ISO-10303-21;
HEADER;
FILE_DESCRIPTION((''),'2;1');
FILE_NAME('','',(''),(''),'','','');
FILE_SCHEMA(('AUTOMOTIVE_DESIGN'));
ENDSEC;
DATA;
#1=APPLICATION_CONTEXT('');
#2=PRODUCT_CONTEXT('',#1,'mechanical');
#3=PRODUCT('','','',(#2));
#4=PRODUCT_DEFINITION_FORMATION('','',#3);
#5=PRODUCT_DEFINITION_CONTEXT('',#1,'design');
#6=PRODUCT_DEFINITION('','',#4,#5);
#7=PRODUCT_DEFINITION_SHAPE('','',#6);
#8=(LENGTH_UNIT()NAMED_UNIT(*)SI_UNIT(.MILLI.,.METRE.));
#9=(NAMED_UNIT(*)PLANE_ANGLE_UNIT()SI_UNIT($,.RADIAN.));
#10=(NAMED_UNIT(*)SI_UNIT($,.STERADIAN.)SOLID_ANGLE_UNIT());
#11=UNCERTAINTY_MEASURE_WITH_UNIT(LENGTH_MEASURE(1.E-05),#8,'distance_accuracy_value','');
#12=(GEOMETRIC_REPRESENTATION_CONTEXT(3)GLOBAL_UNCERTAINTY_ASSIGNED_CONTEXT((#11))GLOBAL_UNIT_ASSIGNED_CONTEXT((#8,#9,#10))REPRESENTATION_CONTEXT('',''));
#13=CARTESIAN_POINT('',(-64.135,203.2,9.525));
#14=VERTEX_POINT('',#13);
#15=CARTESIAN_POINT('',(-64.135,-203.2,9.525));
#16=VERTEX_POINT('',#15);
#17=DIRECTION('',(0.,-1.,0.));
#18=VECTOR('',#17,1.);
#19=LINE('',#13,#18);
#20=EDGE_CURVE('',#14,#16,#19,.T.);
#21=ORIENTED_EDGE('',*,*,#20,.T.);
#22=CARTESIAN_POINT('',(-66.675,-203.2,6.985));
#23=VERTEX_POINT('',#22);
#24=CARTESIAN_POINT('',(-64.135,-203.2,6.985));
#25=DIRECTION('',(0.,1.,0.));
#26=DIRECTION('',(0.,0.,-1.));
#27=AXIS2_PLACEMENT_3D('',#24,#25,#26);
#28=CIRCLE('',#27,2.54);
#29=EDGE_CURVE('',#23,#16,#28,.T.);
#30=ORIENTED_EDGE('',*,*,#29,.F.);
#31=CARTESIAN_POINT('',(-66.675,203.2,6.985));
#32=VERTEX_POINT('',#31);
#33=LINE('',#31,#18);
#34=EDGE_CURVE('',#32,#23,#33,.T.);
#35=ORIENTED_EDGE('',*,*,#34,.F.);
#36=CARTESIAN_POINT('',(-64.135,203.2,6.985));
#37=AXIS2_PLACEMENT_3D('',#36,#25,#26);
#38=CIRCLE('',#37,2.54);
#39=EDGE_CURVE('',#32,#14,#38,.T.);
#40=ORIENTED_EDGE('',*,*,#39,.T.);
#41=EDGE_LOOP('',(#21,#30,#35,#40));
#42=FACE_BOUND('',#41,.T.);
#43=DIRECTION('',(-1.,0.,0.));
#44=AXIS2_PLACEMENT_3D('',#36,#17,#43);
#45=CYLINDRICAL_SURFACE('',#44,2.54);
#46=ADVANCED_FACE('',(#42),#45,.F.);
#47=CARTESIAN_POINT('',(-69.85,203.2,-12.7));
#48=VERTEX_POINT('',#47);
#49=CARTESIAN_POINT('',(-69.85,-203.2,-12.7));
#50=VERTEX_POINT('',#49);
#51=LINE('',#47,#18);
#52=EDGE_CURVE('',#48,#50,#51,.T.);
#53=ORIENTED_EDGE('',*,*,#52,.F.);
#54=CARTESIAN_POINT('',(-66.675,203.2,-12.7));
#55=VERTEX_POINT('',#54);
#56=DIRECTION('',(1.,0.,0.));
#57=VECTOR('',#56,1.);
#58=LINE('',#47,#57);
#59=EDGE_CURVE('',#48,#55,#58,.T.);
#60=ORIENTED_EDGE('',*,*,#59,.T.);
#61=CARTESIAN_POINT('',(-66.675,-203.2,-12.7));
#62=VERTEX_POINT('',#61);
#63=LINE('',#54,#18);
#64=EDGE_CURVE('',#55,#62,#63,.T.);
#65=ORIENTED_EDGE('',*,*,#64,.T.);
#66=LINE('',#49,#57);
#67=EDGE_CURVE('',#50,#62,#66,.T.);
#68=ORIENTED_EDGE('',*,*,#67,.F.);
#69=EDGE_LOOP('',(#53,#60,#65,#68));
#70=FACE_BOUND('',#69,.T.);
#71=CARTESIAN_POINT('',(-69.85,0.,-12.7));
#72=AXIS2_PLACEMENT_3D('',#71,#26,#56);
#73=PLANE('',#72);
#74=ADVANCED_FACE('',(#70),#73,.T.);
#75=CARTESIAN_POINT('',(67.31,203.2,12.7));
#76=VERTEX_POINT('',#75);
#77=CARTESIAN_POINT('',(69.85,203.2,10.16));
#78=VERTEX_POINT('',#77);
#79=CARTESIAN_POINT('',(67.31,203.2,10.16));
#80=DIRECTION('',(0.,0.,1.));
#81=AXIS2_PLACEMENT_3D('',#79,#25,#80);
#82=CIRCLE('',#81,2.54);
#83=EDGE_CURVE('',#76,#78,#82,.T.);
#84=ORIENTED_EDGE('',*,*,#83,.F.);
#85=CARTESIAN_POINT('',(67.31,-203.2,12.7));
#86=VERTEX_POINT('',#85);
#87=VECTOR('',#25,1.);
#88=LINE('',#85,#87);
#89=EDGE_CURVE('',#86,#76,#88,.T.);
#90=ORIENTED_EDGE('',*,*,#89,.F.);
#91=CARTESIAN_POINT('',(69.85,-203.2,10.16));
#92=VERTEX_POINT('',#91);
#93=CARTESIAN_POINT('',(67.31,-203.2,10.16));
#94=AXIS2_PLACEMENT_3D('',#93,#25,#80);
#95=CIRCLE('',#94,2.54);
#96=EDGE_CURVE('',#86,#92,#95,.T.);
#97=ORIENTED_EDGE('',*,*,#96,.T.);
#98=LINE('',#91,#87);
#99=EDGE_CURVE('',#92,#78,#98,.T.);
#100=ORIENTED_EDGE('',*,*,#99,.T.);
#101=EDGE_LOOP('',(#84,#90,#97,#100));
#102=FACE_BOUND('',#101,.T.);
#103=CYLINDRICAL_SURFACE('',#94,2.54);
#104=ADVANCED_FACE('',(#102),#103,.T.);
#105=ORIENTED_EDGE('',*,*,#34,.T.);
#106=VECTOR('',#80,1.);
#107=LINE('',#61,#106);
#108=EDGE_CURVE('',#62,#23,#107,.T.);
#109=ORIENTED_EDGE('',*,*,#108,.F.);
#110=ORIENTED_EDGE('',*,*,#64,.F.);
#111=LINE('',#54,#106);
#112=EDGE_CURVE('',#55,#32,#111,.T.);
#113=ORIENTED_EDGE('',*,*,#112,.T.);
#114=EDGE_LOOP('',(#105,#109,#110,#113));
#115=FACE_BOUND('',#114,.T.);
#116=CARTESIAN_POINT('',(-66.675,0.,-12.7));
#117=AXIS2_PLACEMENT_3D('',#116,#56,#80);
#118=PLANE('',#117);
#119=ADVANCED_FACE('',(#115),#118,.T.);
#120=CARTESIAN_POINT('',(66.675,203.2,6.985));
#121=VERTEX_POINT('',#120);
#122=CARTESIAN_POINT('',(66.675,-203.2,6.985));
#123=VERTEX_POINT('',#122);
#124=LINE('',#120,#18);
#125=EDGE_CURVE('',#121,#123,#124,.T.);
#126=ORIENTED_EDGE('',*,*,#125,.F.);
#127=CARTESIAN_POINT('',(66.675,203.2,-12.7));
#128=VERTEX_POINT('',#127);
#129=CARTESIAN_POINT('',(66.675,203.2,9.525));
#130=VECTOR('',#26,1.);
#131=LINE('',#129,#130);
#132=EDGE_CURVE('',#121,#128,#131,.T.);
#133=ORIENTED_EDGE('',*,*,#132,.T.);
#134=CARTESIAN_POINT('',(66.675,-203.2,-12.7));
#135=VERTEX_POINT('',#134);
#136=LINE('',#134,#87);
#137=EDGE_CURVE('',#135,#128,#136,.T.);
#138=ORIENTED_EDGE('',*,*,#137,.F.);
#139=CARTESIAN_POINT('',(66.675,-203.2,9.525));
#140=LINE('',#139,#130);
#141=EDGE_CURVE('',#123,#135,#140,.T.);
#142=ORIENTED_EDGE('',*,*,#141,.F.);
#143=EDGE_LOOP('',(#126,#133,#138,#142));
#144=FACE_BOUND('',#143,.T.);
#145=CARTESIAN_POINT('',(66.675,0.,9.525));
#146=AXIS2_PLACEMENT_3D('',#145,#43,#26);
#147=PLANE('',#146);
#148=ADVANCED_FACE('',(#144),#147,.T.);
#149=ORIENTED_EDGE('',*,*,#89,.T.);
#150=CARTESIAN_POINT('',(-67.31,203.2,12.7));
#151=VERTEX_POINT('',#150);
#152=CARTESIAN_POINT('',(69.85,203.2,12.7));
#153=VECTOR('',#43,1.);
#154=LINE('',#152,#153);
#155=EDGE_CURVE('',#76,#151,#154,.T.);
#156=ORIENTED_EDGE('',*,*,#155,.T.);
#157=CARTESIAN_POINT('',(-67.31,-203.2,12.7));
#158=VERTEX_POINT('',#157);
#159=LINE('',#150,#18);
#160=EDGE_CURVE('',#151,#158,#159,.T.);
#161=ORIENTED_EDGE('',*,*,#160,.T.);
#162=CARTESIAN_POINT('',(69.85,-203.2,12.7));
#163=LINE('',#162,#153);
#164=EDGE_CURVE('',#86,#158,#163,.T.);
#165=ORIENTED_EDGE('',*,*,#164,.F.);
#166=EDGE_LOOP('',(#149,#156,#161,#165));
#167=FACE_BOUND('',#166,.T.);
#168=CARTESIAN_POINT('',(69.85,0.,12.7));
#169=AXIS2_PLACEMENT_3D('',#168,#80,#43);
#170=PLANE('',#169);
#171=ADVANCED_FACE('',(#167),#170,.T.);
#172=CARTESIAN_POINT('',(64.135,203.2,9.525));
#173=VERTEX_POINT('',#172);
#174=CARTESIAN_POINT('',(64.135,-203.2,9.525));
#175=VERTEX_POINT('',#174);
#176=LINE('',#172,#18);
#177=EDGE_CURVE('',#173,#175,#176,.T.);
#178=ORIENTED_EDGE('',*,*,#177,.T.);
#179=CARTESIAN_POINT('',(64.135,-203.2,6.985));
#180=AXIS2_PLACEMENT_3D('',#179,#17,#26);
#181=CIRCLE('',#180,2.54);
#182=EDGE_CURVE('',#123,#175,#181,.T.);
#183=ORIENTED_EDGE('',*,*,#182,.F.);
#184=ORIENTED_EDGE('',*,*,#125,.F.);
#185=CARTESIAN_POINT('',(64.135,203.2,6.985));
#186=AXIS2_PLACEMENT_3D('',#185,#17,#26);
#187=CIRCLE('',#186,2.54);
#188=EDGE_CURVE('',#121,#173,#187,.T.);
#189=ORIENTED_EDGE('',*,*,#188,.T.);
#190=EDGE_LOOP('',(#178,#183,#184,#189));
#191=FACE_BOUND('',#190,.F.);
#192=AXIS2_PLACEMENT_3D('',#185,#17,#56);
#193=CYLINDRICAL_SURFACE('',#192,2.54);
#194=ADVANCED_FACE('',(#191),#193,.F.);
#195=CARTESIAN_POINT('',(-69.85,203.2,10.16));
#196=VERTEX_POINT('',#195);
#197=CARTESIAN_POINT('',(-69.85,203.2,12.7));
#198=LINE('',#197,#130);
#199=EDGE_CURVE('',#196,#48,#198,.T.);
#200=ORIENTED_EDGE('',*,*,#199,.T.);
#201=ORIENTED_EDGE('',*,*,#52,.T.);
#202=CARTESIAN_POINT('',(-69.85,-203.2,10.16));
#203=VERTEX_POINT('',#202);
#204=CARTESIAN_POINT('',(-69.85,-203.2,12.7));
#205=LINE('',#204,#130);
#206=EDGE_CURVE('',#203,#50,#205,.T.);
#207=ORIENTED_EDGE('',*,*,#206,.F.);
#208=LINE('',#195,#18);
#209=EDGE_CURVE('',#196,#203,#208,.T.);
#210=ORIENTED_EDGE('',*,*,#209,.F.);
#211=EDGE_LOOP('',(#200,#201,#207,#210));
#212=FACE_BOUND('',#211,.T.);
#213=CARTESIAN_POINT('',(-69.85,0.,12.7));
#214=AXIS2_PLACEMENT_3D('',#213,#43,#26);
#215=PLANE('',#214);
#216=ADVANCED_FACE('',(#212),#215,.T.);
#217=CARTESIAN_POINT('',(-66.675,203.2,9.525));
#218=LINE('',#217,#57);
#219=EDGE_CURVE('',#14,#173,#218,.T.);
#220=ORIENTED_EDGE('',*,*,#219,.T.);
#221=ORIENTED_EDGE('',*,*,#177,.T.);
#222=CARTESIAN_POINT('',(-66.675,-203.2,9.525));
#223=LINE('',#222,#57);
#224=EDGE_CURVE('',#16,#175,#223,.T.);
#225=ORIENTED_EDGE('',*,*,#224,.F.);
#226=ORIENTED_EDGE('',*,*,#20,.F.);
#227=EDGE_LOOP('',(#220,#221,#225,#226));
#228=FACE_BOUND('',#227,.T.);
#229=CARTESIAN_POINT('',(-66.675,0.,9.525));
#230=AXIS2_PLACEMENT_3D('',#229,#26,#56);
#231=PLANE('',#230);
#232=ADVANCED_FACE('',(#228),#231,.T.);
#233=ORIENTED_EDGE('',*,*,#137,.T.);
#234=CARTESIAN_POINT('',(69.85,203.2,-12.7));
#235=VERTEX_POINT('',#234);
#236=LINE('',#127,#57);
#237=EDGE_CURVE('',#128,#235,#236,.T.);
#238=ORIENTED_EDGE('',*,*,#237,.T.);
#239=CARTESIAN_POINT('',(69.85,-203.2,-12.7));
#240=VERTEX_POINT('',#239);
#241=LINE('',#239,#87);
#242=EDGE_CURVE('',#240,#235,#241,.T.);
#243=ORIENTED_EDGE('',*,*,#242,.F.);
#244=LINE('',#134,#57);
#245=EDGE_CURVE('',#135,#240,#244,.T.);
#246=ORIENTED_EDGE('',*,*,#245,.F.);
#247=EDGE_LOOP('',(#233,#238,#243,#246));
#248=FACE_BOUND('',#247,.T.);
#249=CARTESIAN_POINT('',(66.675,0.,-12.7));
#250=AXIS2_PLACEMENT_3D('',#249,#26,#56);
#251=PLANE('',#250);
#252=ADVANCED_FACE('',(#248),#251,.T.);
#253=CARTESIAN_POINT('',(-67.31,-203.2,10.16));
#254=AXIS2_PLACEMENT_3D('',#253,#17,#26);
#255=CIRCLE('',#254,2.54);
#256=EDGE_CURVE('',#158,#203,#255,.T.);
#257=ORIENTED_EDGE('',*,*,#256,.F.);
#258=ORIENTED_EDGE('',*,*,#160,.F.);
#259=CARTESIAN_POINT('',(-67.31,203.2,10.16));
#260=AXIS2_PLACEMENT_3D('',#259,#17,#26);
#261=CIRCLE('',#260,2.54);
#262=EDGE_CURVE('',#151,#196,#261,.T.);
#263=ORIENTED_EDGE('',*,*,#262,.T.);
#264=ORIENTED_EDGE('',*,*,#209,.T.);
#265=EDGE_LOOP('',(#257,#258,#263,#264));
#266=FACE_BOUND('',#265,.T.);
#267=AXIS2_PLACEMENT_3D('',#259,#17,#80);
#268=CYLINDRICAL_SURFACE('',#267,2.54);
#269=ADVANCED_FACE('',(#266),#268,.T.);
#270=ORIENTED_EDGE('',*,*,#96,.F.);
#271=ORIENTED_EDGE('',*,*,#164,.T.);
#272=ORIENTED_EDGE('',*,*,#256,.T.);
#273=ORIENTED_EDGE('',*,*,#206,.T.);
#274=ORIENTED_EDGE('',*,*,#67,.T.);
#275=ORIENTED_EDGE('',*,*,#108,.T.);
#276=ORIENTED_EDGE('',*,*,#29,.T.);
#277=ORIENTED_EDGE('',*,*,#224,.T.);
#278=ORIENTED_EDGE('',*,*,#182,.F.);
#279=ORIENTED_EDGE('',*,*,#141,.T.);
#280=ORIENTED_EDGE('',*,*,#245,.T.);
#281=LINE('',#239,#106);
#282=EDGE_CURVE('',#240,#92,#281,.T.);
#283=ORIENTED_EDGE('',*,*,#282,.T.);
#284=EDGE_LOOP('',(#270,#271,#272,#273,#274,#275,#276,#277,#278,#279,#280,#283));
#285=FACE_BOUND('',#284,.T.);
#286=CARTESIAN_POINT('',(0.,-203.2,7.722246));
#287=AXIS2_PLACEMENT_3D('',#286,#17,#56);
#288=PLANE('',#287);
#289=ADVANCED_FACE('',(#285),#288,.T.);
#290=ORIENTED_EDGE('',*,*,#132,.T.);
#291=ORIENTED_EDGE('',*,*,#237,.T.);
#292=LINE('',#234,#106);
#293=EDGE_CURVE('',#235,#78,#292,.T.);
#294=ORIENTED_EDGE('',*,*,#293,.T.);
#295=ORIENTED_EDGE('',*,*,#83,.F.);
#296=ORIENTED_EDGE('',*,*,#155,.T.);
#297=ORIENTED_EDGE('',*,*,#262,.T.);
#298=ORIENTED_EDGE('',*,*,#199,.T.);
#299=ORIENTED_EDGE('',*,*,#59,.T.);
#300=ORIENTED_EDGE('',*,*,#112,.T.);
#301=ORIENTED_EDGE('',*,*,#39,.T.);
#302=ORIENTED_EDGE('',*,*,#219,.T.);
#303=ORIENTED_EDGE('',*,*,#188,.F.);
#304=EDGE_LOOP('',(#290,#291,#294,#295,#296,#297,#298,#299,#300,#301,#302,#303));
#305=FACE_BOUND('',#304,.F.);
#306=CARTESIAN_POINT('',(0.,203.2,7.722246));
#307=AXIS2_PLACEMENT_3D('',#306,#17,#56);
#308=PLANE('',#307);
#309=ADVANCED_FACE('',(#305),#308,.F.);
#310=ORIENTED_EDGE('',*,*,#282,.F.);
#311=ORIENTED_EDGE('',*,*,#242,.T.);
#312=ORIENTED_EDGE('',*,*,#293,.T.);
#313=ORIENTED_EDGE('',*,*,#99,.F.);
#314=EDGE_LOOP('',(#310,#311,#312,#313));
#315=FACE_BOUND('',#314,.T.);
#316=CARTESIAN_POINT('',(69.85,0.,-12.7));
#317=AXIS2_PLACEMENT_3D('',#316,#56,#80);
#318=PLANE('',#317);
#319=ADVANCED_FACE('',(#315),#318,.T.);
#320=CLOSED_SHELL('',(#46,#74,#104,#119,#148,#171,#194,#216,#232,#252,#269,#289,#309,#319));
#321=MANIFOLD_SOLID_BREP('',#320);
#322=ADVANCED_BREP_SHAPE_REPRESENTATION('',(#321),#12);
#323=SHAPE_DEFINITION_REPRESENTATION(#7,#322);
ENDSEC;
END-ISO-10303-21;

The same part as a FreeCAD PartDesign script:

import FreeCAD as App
import Part
import Sketcher

V = App.Vector
Q = App.Units.Quantity


def edges_at(feature, points):
    """Names of the edges that pass closest to the given points."""
    edges = feature.Shape.Edges
    near = lambda p: min(range(len(edges)), key=lambda i: edges[i].distToShape(Part.Vertex(*p))[0])
    return sorted({f"Edge{near(p) + 1}" for p in points})

doc = App.newDocument("Part")
body = doc.addObject("PartDesign::Body", "Body")

# Sketch on XZ plane
sketch1 = doc.addObject("Sketcher::SketchObject", "Sketch")
body.addObject(sketch1)
sketch1.AttachmentSupport = (doc.XZ_Plane, [""])
sketch1.MapMode = "FlatFace"
sketch1.addGeometry(Part.LineSegment(V(69.85, 12.7, 0), V(-69.85, 12.7, 0)), False)
sketch1.addGeometry(Part.LineSegment(V(-69.85, 12.7, 0), V(-69.85, -12.7, 0)), False)
sketch1.addGeometry(Part.LineSegment(V(-69.85, -12.7, 0), V(-66.675, -12.7, 0)), False)
sketch1.addGeometry(Part.LineSegment(V(-66.675, -12.7, 0), V(-66.675, 9.525, 0)), False)
sketch1.addGeometry(Part.LineSegment(V(-66.675, 9.525, 0), V(66.675, 9.525, 0)), False)
sketch1.addGeometry(Part.LineSegment(V(66.675, 9.525, 0), V(66.675, -12.7, 0)), False)
sketch1.addGeometry(Part.LineSegment(V(66.675, -12.7, 0), V(69.85, -12.7, 0)), False)
sketch1.addGeometry(Part.LineSegment(V(69.85, -12.7, 0), V(69.85, 12.7, 0)), False)
sketch1.addConstraint(Sketcher.Constraint("Coincident", 0, 2, 1, 1))
sketch1.addConstraint(Sketcher.Constraint("Coincident", 1, 2, 2, 1))
sketch1.addConstraint(Sketcher.Constraint("Coincident", 2, 2, 3, 1))
sketch1.addConstraint(Sketcher.Constraint("Coincident", 3, 2, 4, 1))
sketch1.addConstraint(Sketcher.Constraint("Coincident", 4, 2, 5, 1))
sketch1.addConstraint(Sketcher.Constraint("Coincident", 5, 2, 6, 1))
sketch1.addConstraint(Sketcher.Constraint("Coincident", 6, 2, 7, 1))
sketch1.addConstraint(Sketcher.Constraint("Coincident", 7, 2, 0, 1))
sketch1.addConstraint(Sketcher.Constraint("Horizontal", 0))
sketch1.addConstraint(Sketcher.Constraint("Vertical", 1))
sketch1.addConstraint(Sketcher.Constraint("Horizontal", 2))
sketch1.addConstraint(Sketcher.Constraint("Vertical", 3))
sketch1.addConstraint(Sketcher.Constraint("Horizontal", 4))
sketch1.addConstraint(Sketcher.Constraint("Vertical", 5))
sketch1.addConstraint(Sketcher.Constraint("Horizontal", 6))
sketch1.addConstraint(Sketcher.Constraint("Vertical", 7))
sketch1.addConstraint(Sketcher.Constraint("Symmetric", 0, 2, 6, 2, -1, 1))
sketch1.addConstraint(Sketcher.Constraint("Symmetric", 2, 2, 5, 2, -2))
sketch1.addConstraint(Sketcher.Constraint("DistanceY", 1, 2, 1, 1, Q("1 in")))
sketch1.addConstraint(Sketcher.Constraint("DistanceX", 0, 2, 0, 1, Q("5.5 in")))
sketch1.addConstraint(Sketcher.Constraint("DistanceX", 4, 1, 4, 2, Q("5.25 in")))
sketch1.addConstraint(Sketcher.Constraint("DistanceY", 3, 1, 3, 2, Q("0.875 in")))
pad1 = doc.addObject("PartDesign::Pad", "Pad")
body.addObject(pad1)
pad1.Profile = sketch1
pad1.Length = Q("16 in")
pad1.Midplane = True
doc.recompute()

fillet = doc.addObject("PartDesign::Fillet", "Fillet")
body.addObject(fillet)
fillet.Base = (pad1, edges_at(pad1, [(-69.85, 0, 12.7), (69.85, 0, 12.7)]))
fillet.Radius = Q("0.1 in")
doc.recompute()

fillet2 = doc.addObject("PartDesign::Fillet", "Fillet001")
body.addObject(fillet2)
fillet2.Base = (fillet, edges_at(fillet, [(-66.675, 0, 9.525), (66.675, 0, 9.525)]))
fillet2.Radius = Q("0.1 in")

doc.recompute()
